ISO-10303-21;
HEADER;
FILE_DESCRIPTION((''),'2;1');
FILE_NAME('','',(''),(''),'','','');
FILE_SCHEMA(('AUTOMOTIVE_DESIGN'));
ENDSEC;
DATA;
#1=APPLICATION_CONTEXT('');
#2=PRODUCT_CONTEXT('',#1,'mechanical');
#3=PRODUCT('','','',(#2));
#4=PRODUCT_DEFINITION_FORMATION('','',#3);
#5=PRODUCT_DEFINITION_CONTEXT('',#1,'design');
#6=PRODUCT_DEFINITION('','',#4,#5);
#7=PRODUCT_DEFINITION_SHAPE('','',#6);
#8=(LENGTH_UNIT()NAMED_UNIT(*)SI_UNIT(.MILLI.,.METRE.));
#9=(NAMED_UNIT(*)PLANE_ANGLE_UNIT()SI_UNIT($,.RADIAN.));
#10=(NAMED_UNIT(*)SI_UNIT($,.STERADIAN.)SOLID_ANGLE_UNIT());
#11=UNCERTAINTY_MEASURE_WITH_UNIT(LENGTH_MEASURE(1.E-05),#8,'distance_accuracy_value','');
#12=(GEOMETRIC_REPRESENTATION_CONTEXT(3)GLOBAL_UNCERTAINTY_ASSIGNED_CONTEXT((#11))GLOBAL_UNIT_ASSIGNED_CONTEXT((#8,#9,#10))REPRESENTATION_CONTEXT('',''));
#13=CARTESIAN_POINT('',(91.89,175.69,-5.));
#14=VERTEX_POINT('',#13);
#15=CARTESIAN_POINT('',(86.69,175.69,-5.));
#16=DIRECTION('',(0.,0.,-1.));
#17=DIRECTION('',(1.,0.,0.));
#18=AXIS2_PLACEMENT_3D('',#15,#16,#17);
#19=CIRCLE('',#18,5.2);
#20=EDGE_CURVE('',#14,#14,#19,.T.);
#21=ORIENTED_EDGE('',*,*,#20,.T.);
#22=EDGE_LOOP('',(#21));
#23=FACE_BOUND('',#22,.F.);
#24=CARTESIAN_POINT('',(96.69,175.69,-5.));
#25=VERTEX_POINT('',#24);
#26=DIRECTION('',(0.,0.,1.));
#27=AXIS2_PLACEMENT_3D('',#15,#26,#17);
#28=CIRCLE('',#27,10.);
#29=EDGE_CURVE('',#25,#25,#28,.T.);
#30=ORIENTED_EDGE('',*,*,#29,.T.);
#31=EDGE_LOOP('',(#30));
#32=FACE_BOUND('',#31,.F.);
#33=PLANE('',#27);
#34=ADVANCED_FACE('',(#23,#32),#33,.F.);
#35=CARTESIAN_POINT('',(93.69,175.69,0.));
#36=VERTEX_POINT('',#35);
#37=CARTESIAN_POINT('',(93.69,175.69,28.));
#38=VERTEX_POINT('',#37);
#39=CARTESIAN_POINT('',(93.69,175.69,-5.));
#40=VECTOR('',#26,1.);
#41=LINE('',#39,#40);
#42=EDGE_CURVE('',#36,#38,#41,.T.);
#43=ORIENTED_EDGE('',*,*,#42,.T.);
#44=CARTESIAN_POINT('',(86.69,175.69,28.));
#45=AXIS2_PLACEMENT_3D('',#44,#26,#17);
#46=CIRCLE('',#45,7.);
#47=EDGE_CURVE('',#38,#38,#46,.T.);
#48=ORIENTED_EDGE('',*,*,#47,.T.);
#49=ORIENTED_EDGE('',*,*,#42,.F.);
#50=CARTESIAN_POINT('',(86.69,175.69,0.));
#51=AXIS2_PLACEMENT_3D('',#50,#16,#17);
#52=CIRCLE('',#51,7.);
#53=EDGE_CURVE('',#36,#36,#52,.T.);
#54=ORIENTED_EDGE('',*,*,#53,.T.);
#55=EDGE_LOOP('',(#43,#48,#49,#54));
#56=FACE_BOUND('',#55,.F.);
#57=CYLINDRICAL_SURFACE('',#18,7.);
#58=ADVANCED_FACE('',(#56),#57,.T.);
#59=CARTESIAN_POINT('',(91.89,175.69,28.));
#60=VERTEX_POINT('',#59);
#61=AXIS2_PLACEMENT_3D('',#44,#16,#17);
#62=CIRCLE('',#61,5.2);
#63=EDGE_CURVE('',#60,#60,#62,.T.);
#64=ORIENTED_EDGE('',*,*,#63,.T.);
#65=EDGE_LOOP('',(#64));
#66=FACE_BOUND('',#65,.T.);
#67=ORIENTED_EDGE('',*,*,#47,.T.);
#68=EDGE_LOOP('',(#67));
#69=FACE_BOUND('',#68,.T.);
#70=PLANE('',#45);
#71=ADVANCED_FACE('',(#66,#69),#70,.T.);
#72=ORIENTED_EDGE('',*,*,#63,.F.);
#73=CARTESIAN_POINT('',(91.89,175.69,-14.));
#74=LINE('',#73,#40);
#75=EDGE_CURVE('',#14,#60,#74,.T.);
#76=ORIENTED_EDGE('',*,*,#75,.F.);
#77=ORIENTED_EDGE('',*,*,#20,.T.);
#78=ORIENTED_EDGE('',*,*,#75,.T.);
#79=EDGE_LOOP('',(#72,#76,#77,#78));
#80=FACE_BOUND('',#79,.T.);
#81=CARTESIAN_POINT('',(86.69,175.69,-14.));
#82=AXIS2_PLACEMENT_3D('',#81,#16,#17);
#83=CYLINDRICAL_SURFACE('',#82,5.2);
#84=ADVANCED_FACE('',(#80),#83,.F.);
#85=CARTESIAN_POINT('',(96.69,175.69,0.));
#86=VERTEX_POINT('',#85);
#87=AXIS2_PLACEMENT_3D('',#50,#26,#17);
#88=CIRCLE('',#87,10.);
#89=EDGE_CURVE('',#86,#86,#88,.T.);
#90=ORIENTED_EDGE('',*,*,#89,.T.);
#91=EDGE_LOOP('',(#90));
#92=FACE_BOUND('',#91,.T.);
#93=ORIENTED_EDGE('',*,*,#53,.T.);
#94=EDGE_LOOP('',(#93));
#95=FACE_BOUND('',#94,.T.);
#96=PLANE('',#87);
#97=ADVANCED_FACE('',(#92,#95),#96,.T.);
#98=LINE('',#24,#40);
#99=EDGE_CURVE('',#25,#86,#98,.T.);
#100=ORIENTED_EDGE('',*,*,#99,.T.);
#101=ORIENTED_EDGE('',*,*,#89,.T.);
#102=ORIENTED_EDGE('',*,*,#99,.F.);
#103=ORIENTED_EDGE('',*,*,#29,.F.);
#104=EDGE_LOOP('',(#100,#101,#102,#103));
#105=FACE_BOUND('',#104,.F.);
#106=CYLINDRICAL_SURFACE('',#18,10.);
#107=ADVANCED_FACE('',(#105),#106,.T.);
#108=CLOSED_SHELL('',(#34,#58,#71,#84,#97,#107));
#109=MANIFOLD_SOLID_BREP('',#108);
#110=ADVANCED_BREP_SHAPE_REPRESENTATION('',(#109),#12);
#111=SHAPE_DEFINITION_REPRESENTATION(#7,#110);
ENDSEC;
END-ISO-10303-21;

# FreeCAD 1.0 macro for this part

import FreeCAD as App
import Part
import Sketcher

V = App.Vector


def add_polygon(sketch, points):
    """Adds a closed chain of lines whose ends are joined by coincident constraints."""
    first, n = sketch.GeometryCount, len(points)
    for a, b in zip(points, points[1:] + points[:1]):
        sketch.addGeometry(Part.LineSegment(App.Vector(*a, 0), App.Vector(*b, 0)), False)
    for i in range(n):
        sketch.addConstraint(Sketcher.Constraint("Coincident", first + i, 2, first + (i + 1) % n, 1))

doc = App.newDocument("Part")
body = doc.addObject("PartDesign::Body", "Body")

sketch1 = body.newObject("Sketcher::SketchObject", "Sketch")
sketch1.AttachmentSupport = (doc.getObject("XY_Plane"), [""])
sketch1.MapMode = "FlatFace"
sketch1.AttachmentOffset = App.Placement(V(0, 0, -10), App.Rotation())
sketch1.addGeometry(Part.Circle(V(99.69, 175.69, 0), V(0, 0, 1), 1.5), False)
sketch1.addConstraint([
    Sketcher.Constraint("Diameter", 0, 3.0),
    Sketcher.Constraint("DistanceX", -1, 1, 0, 3, 99.69),
    Sketcher.Constraint("DistanceY", -1, 1, 0, 3, 175.69),
])
pad1 = body.newObject("PartDesign::Pad", "Pad")
pad1.Profile = sketch1
pad1.Length = 11
body2 = doc.addObject("PartDesign::Body", "Body001")

sketch2 = body2.newObject("Sketcher::SketchObject", "Sketch001")
sketch2.AttachmentSupport = (doc.getObject("XY_Plane001"), [""])
sketch2.MapMode = "FlatFace"
sketch2.AttachmentOffset = App.Placement(V(0, 0, -14), App.Rotation())
sketch2.addGeometry(Part.Circle(V(86.69, 175.69, 0), V(0, 0, 1), 5.2), False)
sketch2.addConstraint([
    Sketcher.Constraint("Diameter", 0, 10.4),
    Sketcher.Constraint("DistanceX", -1, 1, 0, 3, 86.69),
    Sketcher.Constraint("DistanceY", -1, 1, 0, 3, 175.69),
])
pad2 = body2.newObject("PartDesign::Pad", "Pad001")
pad2.Profile = sketch2
pad2.Length = 46
body3 = doc.addObject("PartDesign::Body", "Body002")
body3.AllowCompound = True

sketch3 = body3.newObject("Sketcher::SketchObject", "Sketch002")
sketch3.AttachmentSupport = (doc.getObject("XY_Plane002"), [""])
sketch3.MapMode = "FlatFace"
sketch3.AttachmentOffset = App.Placement(V(0, 0, -10), App.Rotation())
sketch3.addGeometry(Part.Circle(V(73.69, 175.69, 0), V(0, 0, 1), 1.5), False)
sketch3.addConstraint([
    Sketcher.Constraint("Diameter", 0, 3.0),
    Sketcher.Constraint("DistanceX", -1, 1, 0, 3, 73.69),
    Sketcher.Constraint("DistanceY", -1, 1, 0, 3, 175.69),
])
pad3 = body3.newObject("PartDesign::Pad", "Pad002")
pad3.Profile = sketch3
pad3.Length = 11
doc.recompute()

boolean = body3.newObject("PartDesign::Boolean", "Boolean")
boolean.Type = "Fuse"
boolean.addObjects([body])
doc.recompute()

boolean2 = body3.newObject("PartDesign::Boolean", "Boolean001")
boolean2.Type = "Fuse"
boolean2.addObjects([body2])
body4 = doc.addObject("PartDesign::Body", "Body003")

sketch4 = body4.newObject("Sketcher::SketchObject", "Sketch003")
sketch4.AttachmentSupport = (doc.getObject("XY_Plane003"), [""])
sketch4.MapMode = "FlatFace"
sketch4.AttachmentOffset = App.Placement(V(0, 0, -5), App.Rotation())
add_polygon(sketch4, [(77.69, 172.69), (77.69, 171.69), (91.69, 171.69), (91.69, 172.69)])
sketch4.addConstraint([
    Sketcher.Constraint("Vertical", 0),
    Sketcher.Constraint("Horizontal", 1),
    Sketcher.Constraint("Vertical", 2),
    Sketcher.Constraint("Horizontal", 3),
    Sketcher.Constraint("DistanceX", 1, 1, 1, 2, 14.0),
    Sketcher.Constraint("DistanceY", 0, 2, 0, 1, 1.0),
    Sketcher.Constraint("DistanceX", -1, 1, 0, 2, 77.69),
    Sketcher.Constraint("DistanceY", -1, 1, 0, 2, 171.69),
])
pad4 = body4.newObject("PartDesign::Pad", "Pad003")
pad4.Profile = sketch4
pad4.Length = 5
body5 = doc.addObject("PartDesign::Body", "Body004")

sketch5 = body5.newObject("Sketcher::SketchObject", "Sketch004")
sketch5.AttachmentSupport = (doc.getObject("XY_Plane004"), [""])
sketch5.MapMode = "FlatFace"
sketch5.AttachmentOffset = App.Placement(V(0, 0, -5), App.Rotation())
sketch5.addGeometry(Part.Circle(V(86.69, 175.69, 0), V(0, 0, 1), 10), False)
sketch5.addConstraint([
    Sketcher.Constraint("Diameter", 0, 20.0),
    Sketcher.Constraint("DistanceX", -1, 1, 0, 3, 86.69),
    Sketcher.Constraint("DistanceY", -1, 1, 0, 3, 175.69),
])
pad5 = body5.newObject("PartDesign::Pad", "Pad004")
pad5.Profile = sketch5
pad5.Length = 5
body6 = doc.addObject("PartDesign::Body", "Body005")

sketch6 = body6.newObject("Sketcher::SketchObject", "Sketch005")
sketch6.AttachmentSupport = (doc.getObject("XY_Plane005"), [""])
sketch6.MapMode = "FlatFace"
sketch6.AttachmentOffset = App.Placement(V(0, 0, -5), App.Rotation())
sketch6.addGeometry(Part.Circle(V(86.69, 175.69, 0), V(0, 0, 1), 7), False)
sketch6.addConstraint([
    Sketcher.Constraint("Diameter", 0, 14.0),
    Sketcher.Constraint("DistanceX", -1, 1, 0, 3, 86.69),
    Sketcher.Constraint("DistanceY", -1, 1, 0, 3, 175.69),
])
pad6 = body6.newObject("PartDesign::Pad", "Pad005")
pad6.Profile = sketch6
pad6.Length = 33
doc.recompute()

boolean3 = body6.newObject("PartDesign::Boolean", "Boolean002")
boolean3.Type = "Fuse"
boolean3.addObjects([body4])
doc.recompute()

boolean4 = body6.newObject("PartDesign::Boolean", "Boolean003")
boolean4.Type = "Fuse"
boolean4.addObjects([body5])
doc.recompute()

boolean5 = body6.newObject("PartDesign::Boolean", "Boolean004")
boolean5.Type = "Cut"
boolean5.addObjects([body3])

doc.recompute()
